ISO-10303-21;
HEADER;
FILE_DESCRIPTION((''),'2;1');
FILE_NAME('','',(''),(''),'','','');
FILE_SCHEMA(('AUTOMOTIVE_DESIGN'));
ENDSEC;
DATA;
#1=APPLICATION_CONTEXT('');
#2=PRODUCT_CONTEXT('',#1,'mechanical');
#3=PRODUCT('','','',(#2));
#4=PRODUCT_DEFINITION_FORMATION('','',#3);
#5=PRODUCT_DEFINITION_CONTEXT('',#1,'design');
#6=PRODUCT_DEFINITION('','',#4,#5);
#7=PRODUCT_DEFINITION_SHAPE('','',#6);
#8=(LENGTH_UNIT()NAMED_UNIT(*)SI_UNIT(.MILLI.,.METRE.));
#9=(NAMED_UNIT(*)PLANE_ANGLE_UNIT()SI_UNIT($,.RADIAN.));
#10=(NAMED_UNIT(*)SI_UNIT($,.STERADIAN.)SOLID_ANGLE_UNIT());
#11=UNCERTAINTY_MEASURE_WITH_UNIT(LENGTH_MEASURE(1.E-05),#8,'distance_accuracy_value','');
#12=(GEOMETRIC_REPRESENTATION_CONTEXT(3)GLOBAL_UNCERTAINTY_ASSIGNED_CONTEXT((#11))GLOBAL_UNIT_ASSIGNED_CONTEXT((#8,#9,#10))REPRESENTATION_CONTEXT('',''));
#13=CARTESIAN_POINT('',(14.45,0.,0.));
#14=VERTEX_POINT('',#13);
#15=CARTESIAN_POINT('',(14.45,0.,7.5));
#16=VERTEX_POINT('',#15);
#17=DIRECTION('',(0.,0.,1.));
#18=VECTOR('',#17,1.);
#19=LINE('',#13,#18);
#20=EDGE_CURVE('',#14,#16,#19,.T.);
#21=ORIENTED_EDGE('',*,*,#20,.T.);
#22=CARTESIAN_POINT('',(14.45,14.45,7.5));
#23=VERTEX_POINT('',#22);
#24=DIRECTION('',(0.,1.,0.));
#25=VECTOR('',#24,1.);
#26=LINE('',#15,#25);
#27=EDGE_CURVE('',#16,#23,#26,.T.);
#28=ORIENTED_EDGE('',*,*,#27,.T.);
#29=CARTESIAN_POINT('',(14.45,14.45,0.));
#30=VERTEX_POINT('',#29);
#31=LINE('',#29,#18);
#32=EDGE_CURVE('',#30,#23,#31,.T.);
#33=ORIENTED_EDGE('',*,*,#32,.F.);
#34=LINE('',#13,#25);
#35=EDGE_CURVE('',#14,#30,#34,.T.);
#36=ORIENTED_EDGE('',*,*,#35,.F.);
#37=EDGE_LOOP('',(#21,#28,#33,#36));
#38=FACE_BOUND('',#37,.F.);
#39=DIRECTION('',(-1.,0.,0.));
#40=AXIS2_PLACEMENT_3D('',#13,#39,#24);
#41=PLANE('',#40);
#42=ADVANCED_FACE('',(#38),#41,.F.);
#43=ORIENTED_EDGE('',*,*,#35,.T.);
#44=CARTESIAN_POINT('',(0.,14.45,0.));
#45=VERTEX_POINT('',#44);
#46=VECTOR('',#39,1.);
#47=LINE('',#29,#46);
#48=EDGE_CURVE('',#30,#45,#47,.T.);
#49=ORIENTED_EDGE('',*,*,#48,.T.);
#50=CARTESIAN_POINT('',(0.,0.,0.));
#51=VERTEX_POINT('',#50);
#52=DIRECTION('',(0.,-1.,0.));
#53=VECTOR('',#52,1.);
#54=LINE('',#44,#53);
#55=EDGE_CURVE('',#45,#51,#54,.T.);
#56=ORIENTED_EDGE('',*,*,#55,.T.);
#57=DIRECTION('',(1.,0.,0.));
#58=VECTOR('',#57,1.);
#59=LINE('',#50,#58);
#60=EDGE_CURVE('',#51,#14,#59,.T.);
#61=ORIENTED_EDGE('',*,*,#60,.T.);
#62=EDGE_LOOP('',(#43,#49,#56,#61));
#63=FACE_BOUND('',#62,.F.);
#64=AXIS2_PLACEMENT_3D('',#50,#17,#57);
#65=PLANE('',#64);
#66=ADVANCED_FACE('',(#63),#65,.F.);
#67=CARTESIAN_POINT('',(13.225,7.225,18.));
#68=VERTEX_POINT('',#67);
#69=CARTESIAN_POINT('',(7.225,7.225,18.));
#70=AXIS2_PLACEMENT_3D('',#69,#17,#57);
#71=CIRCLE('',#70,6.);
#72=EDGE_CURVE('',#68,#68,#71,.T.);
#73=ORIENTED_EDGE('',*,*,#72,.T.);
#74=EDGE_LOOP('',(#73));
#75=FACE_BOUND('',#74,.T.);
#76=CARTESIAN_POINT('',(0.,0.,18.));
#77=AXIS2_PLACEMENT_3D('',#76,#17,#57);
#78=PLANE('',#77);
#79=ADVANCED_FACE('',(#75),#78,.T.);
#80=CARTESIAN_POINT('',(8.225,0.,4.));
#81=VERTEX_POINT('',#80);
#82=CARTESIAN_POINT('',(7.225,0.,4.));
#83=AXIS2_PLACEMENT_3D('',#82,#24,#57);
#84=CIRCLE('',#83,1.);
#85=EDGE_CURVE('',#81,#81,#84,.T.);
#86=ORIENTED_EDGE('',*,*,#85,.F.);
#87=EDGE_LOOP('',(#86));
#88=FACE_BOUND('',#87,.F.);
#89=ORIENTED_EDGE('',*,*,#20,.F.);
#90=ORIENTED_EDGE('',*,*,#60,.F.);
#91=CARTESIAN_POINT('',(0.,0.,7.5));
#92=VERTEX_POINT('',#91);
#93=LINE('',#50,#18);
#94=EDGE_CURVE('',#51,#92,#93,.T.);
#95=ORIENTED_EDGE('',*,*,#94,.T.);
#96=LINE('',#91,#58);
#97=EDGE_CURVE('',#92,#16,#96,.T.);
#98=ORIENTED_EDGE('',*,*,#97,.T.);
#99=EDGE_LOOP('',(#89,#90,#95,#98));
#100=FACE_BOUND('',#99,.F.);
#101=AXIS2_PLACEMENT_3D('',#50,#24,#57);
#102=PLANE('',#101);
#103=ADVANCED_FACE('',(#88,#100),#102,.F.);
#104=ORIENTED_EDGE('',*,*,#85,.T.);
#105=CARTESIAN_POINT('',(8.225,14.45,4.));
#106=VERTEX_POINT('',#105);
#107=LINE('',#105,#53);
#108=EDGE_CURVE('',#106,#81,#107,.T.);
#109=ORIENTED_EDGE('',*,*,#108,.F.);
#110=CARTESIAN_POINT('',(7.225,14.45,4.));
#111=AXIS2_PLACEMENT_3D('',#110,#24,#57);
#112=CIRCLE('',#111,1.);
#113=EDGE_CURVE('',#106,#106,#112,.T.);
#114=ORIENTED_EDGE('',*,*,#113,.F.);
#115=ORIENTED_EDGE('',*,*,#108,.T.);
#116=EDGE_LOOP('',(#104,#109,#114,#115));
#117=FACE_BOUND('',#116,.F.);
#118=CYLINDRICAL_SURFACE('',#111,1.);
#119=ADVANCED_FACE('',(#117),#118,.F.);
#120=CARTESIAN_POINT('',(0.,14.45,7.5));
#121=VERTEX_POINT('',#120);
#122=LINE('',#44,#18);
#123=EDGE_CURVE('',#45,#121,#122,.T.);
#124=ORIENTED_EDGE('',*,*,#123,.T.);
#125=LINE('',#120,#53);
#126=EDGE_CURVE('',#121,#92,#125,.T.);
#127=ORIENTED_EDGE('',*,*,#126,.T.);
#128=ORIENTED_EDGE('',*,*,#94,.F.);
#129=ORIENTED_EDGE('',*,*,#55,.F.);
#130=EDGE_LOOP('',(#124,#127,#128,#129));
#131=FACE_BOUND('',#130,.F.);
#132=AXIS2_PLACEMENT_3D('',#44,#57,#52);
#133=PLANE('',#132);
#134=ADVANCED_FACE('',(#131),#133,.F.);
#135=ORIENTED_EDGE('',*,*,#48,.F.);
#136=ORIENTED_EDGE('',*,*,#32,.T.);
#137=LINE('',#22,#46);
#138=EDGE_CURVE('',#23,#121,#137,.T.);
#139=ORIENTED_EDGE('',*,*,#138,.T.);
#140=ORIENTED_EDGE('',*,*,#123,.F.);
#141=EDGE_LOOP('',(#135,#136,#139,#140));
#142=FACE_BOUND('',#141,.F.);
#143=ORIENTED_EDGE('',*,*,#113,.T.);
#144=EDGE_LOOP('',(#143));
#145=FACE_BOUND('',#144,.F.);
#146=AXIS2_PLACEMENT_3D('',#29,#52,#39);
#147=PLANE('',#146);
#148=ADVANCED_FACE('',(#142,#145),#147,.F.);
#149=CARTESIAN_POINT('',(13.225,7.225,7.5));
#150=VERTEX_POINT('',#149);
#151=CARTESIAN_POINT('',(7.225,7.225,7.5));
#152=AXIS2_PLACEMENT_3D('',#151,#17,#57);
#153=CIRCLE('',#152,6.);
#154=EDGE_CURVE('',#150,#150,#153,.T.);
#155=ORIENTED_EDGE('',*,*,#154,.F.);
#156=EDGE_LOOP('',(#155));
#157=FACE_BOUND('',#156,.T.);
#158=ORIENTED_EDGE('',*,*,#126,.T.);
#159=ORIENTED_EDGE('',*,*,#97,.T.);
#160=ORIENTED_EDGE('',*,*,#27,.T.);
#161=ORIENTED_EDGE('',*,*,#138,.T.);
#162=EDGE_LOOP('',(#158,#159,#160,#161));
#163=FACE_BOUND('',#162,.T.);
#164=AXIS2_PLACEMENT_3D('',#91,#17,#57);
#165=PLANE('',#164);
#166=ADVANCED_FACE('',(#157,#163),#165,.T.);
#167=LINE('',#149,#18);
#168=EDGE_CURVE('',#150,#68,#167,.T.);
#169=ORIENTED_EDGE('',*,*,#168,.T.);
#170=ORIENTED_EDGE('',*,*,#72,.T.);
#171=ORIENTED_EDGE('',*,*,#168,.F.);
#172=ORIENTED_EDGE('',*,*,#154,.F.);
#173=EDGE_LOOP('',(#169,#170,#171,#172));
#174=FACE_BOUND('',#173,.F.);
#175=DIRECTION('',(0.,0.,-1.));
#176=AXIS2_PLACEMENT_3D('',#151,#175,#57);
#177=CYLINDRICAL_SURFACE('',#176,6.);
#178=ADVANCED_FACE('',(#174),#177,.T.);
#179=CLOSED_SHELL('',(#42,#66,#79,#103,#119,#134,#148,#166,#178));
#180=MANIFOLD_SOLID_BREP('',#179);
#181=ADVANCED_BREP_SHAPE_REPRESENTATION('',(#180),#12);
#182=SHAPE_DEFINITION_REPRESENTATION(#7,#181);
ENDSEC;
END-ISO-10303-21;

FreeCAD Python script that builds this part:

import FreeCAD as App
import Part
import Sketcher

V = App.Vector
Q = App.Units.Quantity

doc = App.newDocument("Part")
body = doc.addObject("PartDesign::Body", "Body")

sketch1 = body.newObject("Sketcher::SketchObject", "Sketch")
sketch1.AttachmentSupport = (doc.getObject("XY_Plane"), [""])
sketch1.MapMode = "FlatFace"
sketch1.addGeometry([
    Part.LineSegment(V(0, 14, 0), V(0, 0, 0)),
    Part.LineSegment(V(0, 0, 0), V(14, 0, 0)),
    Part.LineSegment(V(14, 0, 0), V(14, 14, 0)),
    Part.LineSegment(V(14, 14, 0), V(0, 14, 0)),
], False)
sketch1.addConstraint([
    Sketcher.Constraint("Coincident", 0, 2, 1, 1),
    Sketcher.Constraint("Coincident", 1, 2, 2, 1),
    Sketcher.Constraint("Coincident", 2, 2, 3, 1),
    Sketcher.Constraint("Coincident", 3, 2, 0, 1),
    Sketcher.Constraint("Vertical", 0),
    Sketcher.Constraint("Horizontal", 1),
    Sketcher.Constraint("Vertical", 2),
    Sketcher.Constraint("Horizontal", 3),
    Sketcher.Constraint("Coincident", 0, 2, -1, 1),
    Sketcher.Constraint("Equal", 3, 0),
    Sketcher.Constraint("DistanceX", 1, 1, 1, 2, Q("14.45 mm")),
])
pad1 = body.newObject("PartDesign::Pad", "Pad")
pad1.Profile = sketch1
pad1.Length = 7.5

sketch2 = body.newObject("Sketcher::SketchObject", "Sketch001")
sketch2.AttachmentSupport = (doc.getObject("XY_Plane"), [""])
sketch2.MapMode = "FlatFace"
sketch2.AttachmentOffset = App.Placement(V(0, 0, 7.5), App.Rotation())
sketch2.addGeometry(Part.Circle(V(7, 7, 0), V(0, 0, 1), 6), False)
sketch2.addConstraint([
    Sketcher.Constraint("Diameter", 0, Q("12 mm")),
    Sketcher.Constraint("DistanceX", -1, 1, 0, 3, Q("7.225 mm")),
    Sketcher.Constraint("DistanceY", -1, 1, 0, 3, Q("7.225 mm")),
])
pad2 = body.newObject("PartDesign::Pad", "Pad001")
pad2.Profile = sketch2
pad2.Length = 10.5

sketch3 = body.newObject("Sketcher::SketchObject", "Sketch002")
sketch3.AttachmentSupport = (doc.getObject("XZ_Plane"), [""])
sketch3.MapMode = "FlatFace"
sketch3.AttachmentOffset = App.Placement(V(0, 0, -14.45), App.Rotation())
sketch3.addGeometry(Part.Circle(V(7.2, 4, 0), V(0, 0, 1), 1), False)
sketch3.addConstraint([
    Sketcher.Constraint("Diameter", 0, Q("2 mm")),
    Sketcher.Constraint("DistanceY", -1, 1, 0, 3, Q("4 mm")),
    Sketcher.Constraint("DistanceX", -1, 1, 0, 3, Q("7.225 mm")),
])
pocket1 = body.newObject("PartDesign::Pocket", "Pocket")
pocket1.Profile = sketch3
pocket1.Length = 14.45
pocket1.Reversed = True

doc.recompute()
